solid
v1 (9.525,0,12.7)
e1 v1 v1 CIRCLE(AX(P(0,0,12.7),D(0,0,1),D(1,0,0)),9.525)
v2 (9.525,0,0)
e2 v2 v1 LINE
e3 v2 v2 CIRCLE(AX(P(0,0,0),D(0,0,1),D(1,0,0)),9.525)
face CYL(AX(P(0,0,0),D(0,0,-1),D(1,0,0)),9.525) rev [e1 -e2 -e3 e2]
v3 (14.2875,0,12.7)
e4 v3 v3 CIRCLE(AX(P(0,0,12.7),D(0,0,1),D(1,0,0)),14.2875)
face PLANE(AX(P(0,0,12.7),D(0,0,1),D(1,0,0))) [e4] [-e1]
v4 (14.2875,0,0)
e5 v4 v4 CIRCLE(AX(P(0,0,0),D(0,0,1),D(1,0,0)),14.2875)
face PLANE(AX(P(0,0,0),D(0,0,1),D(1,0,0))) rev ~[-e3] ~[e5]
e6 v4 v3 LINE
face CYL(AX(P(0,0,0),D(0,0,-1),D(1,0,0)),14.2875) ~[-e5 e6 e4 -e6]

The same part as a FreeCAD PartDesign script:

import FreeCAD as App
import Part
import Sketcher
Q = App.Units.Quantity

doc = App.newDocument("Part")
body = doc.addObject("PartDesign::Body", "Body")

# Sketch on XY plane
sketch1 = body.newObject("Sketcher::SketchObject", "Sketch")
sketch1.AttachmentSupport = (doc.getObject("XY_Plane"), [""])
sketch1.MapMode = "FlatFace"
sketch1.addGeometry([
    Part.Circle(App.Vector(0, 0, 0), App.Vector(0, 0, 1), 14),
    Part.Circle(App.Vector(0, 0, 0), App.Vector(0, 0, 1), 10),
], False)
sketch1.addConstraint([
    Sketcher.Constraint("Coincident", 0, 3, -1, 1),
    Sketcher.Constraint("Coincident", 1, 3, -1, 1),
    Sketcher.Constraint("Diameter", 1, Q("0.75 in")),
    Sketcher.Constraint("Diameter", 0, Q("1.125 in")),
])
pad1 = body.newObject("PartDesign::Pad", "Pad")
pad1.Profile = sketch1
pad1.Length = Q("0.5 in")

doc.recompute()
